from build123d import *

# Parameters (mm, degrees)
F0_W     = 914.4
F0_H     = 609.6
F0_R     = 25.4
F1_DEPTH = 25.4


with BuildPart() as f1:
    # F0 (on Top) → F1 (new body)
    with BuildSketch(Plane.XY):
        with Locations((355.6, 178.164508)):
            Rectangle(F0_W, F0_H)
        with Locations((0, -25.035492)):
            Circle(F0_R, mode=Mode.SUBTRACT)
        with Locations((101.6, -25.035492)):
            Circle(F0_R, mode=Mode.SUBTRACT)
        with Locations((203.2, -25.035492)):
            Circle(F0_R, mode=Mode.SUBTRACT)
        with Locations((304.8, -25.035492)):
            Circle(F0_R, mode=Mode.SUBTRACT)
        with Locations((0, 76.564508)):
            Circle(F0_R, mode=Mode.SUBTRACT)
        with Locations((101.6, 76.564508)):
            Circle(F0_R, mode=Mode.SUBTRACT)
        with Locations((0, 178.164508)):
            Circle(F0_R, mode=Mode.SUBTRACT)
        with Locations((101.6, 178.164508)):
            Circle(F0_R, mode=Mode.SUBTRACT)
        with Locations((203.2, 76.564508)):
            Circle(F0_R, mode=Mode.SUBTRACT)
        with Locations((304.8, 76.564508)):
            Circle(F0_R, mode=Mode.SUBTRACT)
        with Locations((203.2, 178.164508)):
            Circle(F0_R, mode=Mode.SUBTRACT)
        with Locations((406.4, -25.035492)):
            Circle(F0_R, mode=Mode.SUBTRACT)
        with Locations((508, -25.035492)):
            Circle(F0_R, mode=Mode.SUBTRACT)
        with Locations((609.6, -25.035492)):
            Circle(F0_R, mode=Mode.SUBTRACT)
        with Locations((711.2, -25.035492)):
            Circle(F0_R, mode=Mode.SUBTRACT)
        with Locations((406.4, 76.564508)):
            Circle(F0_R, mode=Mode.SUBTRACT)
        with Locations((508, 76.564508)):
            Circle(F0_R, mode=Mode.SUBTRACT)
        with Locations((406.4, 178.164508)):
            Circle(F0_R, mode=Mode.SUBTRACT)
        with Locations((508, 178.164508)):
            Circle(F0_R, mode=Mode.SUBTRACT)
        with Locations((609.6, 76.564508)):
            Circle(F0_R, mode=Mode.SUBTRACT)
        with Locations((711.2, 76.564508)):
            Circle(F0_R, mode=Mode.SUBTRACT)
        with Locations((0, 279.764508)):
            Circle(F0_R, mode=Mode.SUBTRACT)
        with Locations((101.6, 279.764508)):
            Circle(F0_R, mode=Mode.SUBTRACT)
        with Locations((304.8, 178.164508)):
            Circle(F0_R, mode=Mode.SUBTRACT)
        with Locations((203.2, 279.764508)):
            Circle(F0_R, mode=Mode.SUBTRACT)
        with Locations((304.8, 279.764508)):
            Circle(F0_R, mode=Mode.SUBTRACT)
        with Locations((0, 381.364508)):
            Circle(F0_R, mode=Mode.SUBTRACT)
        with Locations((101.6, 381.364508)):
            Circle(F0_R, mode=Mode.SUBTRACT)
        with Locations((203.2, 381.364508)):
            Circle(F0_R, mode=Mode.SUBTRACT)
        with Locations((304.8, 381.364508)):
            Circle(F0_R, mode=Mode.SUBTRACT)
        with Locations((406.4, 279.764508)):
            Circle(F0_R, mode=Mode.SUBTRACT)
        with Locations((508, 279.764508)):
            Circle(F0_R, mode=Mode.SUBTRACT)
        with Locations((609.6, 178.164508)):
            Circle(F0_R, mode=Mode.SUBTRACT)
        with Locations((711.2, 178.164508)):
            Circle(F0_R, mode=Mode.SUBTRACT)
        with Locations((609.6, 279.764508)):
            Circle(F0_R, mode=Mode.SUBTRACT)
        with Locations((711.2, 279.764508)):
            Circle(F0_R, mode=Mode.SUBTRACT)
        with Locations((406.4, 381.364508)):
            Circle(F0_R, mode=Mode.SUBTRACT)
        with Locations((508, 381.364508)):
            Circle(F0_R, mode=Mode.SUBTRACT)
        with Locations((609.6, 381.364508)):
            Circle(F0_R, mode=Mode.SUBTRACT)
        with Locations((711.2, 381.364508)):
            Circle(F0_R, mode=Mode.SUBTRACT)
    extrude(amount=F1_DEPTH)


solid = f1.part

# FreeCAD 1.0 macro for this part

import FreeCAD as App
import Part
import Sketcher

V = App.Vector
Q = App.Units.Quantity


def add_polygon(sketch, points):
    """Adds a closed chain of lines whose ends are joined by coincident constraints."""
    first, n = sketch.GeometryCount, len(points)
    for a, b in zip(points, points[1:] + points[:1]):
        sketch.addGeometry(Part.LineSegment(App.Vector(*a, 0), App.Vector(*b, 0)), False)
    for i in range(n):
        sketch.addConstraint(Sketcher.Constraint("Coincident", first + i, 2, first + (i + 1) % n, 1))

doc = App.newDocument("Part")
body = doc.addObject("PartDesign::Body", "Body")

sketch1 = body.newObject("Sketcher::SketchObject", "Sketch")
sketch1.AttachmentSupport = (doc.getObject("XY_Plane"), [""])
sketch1.MapMode = "FlatFace"
add_polygon(sketch1, [(-102, 483), (-102, -127), (813, -127), (813, 483)])
sketch1.addGeometry(Part.Circle(V(0, -25, 0), V(0, 0, 1), 25), False)
sketch1.addGeometry(Part.Circle(V(102, -25, 0), V(0, 0, 1), 25), False)
sketch1.addGeometry(Part.Circle(V(203, -25, 0), V(0, 0, 1), 25), False)
sketch1.addGeometry(Part.Circle(V(305, -25, 0), V(0, 0, 1), 25), False)
sketch1.addGeometry(Part.Circle(V(0, 77, 0), V(0, 0, 1), 25), False)
sketch1.addGeometry(Part.Circle(V(102, 77, 0), V(0, 0, 1), 25), False)
sketch1.addGeometry(Part.Circle(V(203, 77, 0), V(0, 0, 1), 25), False)
sketch1.addGeometry(Part.Circle(V(305, 77, 0), V(0, 0, 1), 25), False)
sketch1.addGeometry(Part.Circle(V(406, -25, 0), V(0, 0, 1), 25), False)
sketch1.addGeometry(Part.Circle(V(508, -25, 0), V(0, 0, 1), 25), False)
sketch1.addGeometry(Part.Circle(V(610, -25, 0), V(0, 0, 1), 25), False)
sketch1.addGeometry(Part.Circle(V(711, -25, 0), V(0, 0, 1), 25), False)
sketch1.addGeometry(Part.Circle(V(406, 77, 0), V(0, 0, 1), 25), False)
sketch1.addGeometry(Part.Circle(V(508, 77, 0), V(0, 0, 1), 25), False)
sketch1.addGeometry(Part.Circle(V(610, 77, 0), V(0, 0, 1), 25), False)
sketch1.addGeometry(Part.Circle(V(711, 77, 0), V(0, 0, 1), 25), False)
sketch1.addGeometry(Part.Circle(V(0, 178, 0), V(0, 0, 1), 25), False)
sketch1.addGeometry(Part.Circle(V(102, 178, 0), V(0, 0, 1), 25), False)
sketch1.addGeometry(Part.Circle(V(0, 280, 0), V(0, 0, 1), 25), False)
sketch1.addGeometry(Part.Circle(V(102, 280, 0), V(0, 0, 1), 25), False)
sketch1.addGeometry(Part.Circle(V(203, 178, 0), V(0, 0, 1), 25), False)
sketch1.addGeometry(Part.Circle(V(305, 178, 0), V(0, 0, 1), 25), False)
sketch1.addGeometry(Part.Circle(V(203, 280, 0), V(0, 0, 1), 25), False)
sketch1.addGeometry(Part.Circle(V(305, 280, 0), V(0, 0, 1), 25), False)
sketch1.addGeometry(Part.Circle(V(0, 381, 0), V(0, 0, 1), 25), False)
sketch1.addGeometry(Part.Circle(V(102, 381, 0), V(0, 0, 1), 25), False)
sketch1.addGeometry(Part.Circle(V(203, 381, 0), V(0, 0, 1), 25), False)
sketch1.addGeometry(Part.Circle(V(305, 381, 0), V(0, 0, 1), 25), False)
sketch1.addGeometry(Part.Circle(V(406, 178, 0), V(0, 0, 1), 25), False)
sketch1.addGeometry(Part.Circle(V(508, 178, 0), V(0, 0, 1), 25), False)
sketch1.addGeometry(Part.Circle(V(406, 280, 0), V(0, 0, 1), 25), False)
sketch1.addGeometry(Part.Circle(V(508, 280, 0), V(0, 0, 1), 25), False)
sketch1.addGeometry(Part.Circle(V(610, 178, 0), V(0, 0, 1), 25), False)
sketch1.addGeometry(Part.Circle(V(711, 178, 0), V(0, 0, 1), 25), False)
sketch1.addGeometry(Part.Circle(V(610, 280, 0), V(0, 0, 1), 25), False)
sketch1.addGeometry(Part.Circle(V(711, 280, 0), V(0, 0, 1), 25), False)
sketch1.addGeometry(Part.Circle(V(406, 381, 0), V(0, 0, 1), 25), False)
sketch1.addGeometry(Part.Circle(V(508, 381, 0), V(0, 0, 1), 25), False)
sketch1.addGeometry(Part.Circle(V(610, 381, 0), V(0, 0, 1), 25), False)
sketch1.addGeometry(Part.Circle(V(711, 381, 0), V(0, 0, 1), 25), False)
sketch1.addConstraint([
    Sketcher.Constraint("Vertical", 0),
    Sketcher.Constraint("Horizontal", 1),
    Sketcher.Constraint("Vertical", 2),
    Sketcher.Constraint("Horizontal", 3),
    Sketcher.Constraint("Equal", 4, 5),
    Sketcher.Constraint("Equal", 5, 6),
    Sketcher.Constraint("Equal", 6, 7),
    Sketcher.Constraint("Equal", 7, 8),
    Sketcher.Constraint("Equal", 8, 9),
    Sketcher.Constraint("Equal", 9, 10),
    Sketcher.Constraint("Equal", 10, 11),
    Sketcher.Constraint("Equal", 11, 12),
    Sketcher.Constraint("Equal", 12, 13),
    Sketcher.Constraint("Equal", 13, 14),
    Sketcher.Constraint("Equal", 14, 15),
    Sketcher.Constraint("Equal", 15, 16),
    Sketcher.Constraint("Equal", 16, 17),
    Sketcher.Constraint("Equal", 17, 18),
    Sketcher.Constraint("Equal", 18, 19),
    Sketcher.Constraint("Equal", 19, 20),
    Sketcher.Constraint("Equal", 20, 21),
    Sketcher.Constraint("Equal", 21, 22),
    Sketcher.Constraint("Equal", 22, 23),
    Sketcher.Constraint("Equal", 23, 24),
    Sketcher.Constraint("Equal", 24, 25),
    Sketcher.Constraint("Equal", 25, 26),
    Sketcher.Constraint("Equal", 26, 27),
    Sketcher.Constraint("Equal", 27, 28),
    Sketcher.Constraint("Equal", 28, 29),
    Sketcher.Constraint("Equal", 29, 30),
    Sketcher.Constraint("Equal", 30, 31),
    Sketcher.Constraint("Equal", 31, 32),
    Sketcher.Constraint("Equal", 32, 33),
    Sketcher.Constraint("Equal", 33, 34),
    Sketcher.Constraint("Equal", 34, 35),
    Sketcher.Constraint("Equal", 35, 36),
    Sketcher.Constraint("Equal", 36, 37),
    Sketcher.Constraint("Equal", 37, 38),
    Sketcher.Constraint("Equal", 38, 39),
    Sketcher.Constraint("Equal", 39, 40),
    Sketcher.Constraint("Equal", 40, 41),
    Sketcher.Constraint("Equal", 41, 42),
    Sketcher.Constraint("Equal", 42, 43),
    Sketcher.Constraint("PointOnObject", 4, 3, -2),
    Sketcher.Constraint("PointOnObject", 8, 3, -2),
    Sketcher.Constraint("PointOnObject", 20, 3, -2),
    Sketcher.Constraint("PointOnObject", 22, 3, -2),
    Sketcher.Constraint("PointOnObject", 28, 3, -2),
    Sketcher.Constraint("Horizontal", 4, 3, 5, 3),
    Sketcher.Constraint("Horizontal", 5, 3, 6, 3),
    Sketcher.Constraint("Horizontal", 6, 3, 7, 3),
    Sketcher.Constraint("Horizontal", 8, 3, 9, 3),
    Sketcher.Constraint("Horizontal", 9, 3, 10, 3),
    Sketcher.Constraint("Horizontal", 10, 3, 11, 3),
    Sketcher.Constraint("Horizontal", 7, 3, 12, 3),
    Sketcher.Constraint("Horizontal", 12, 3, 13, 3),
    Sketcher.Constraint("Horizontal", 13, 3, 14, 3),
    Sketcher.Constraint("Horizontal", 14, 3, 15, 3),
    Sketcher.Constraint("Horizontal", 11, 3, 16, 3),
    Sketcher.Constraint("Horizontal", 16, 3, 17, 3),
    Sketcher.Constraint("Horizontal", 17, 3, 18, 3),
    Sketcher.Constraint("Horizontal", 18, 3, 19, 3),
    Sketcher.Constraint("Horizontal", 20, 3, 21, 3),
    Sketcher.Constraint("Horizontal", 22, 3, 23, 3),
    Sketcher.Constraint("Horizontal", 21, 3, 24, 3),
    Sketcher.Constraint("Horizontal", 24, 3, 25, 3),
    Sketcher.Constraint("Horizontal", 23, 3, 26, 3),
    Sketcher.Constraint("Horizontal", 26, 3, 27, 3),
    Sketcher.Constraint("Horizontal", 28, 3, 29, 3),
    Sketcher.Constraint("Horizontal", 29, 3, 30, 3),
    Sketcher.Constraint("Horizontal", 30, 3, 31, 3),
    Sketcher.Constraint("Horizontal", 25, 3, 32, 3),
    Sketcher.Constraint("Horizontal", 32, 3, 33, 3),
    Sketcher.Constraint("Horizontal", 27, 3, 34, 3),
    Sketcher.Constraint("Horizontal", 34, 3, 35, 3),
    Sketcher.Constraint("Horizontal", 33, 3, 36, 3),
    Sketcher.Constraint("Horizontal", 36, 3, 37, 3),
    Sketcher.Constraint("Horizontal", 35, 3, 38, 3),
    Sketcher.Constraint("Horizontal", 38, 3, 39, 3),
    Sketcher.Constraint("Horizontal", 31, 3, 40, 3),
    Sketcher.Constraint("Horizontal", 40, 3, 41, 3),
    Sketcher.Constraint("Horizontal", 41, 3, 42, 3),
    Sketcher.Constraint("Horizontal", 42, 3, 43, 3),
    Sketcher.Constraint("Vertical", 5, 3, 9, 3),
    Sketcher.Constraint("Vertical", 6, 3, 10, 3),
    Sketcher.Constraint("Vertical", 7, 3, 11, 3),
    Sketcher.Constraint("Vertical", 12, 3, 16, 3),
    Sketcher.Constraint("Vertical", 13, 3, 17, 3),
    Sketcher.Constraint("Vertical", 14, 3, 18, 3),
    Sketcher.Constraint("Vertical", 15, 3, 19, 3),
    Sketcher.Constraint("Vertical", 9, 3, 21, 3),
    Sketcher.Constraint("Vertical", 21, 3, 23, 3),
    Sketcher.Constraint("Vertical", 10, 3, 24, 3),
    Sketcher.Constraint("Vertical", 11, 3, 25, 3),
    Sketcher.Constraint("Vertical", 24, 3, 26, 3),
    Sketcher.Constraint("Vertical", 25, 3, 27, 3),
    Sketcher.Constraint("Vertical", 23, 3, 29, 3),
    Sketcher.Constraint("Vertical", 26, 3, 30, 3),
    Sketcher.Constraint("Vertical", 27, 3, 31, 3),
    Sketcher.Constraint("Vertical", 16, 3, 32, 3),
    Sketcher.Constraint("Vertical", 17, 3, 33, 3),
    Sketcher.Constraint("Vertical", 32, 3, 34, 3),
    Sketcher.Constraint("Vertical", 33, 3, 35, 3),
    Sketcher.Constraint("Vertical", 18, 3, 36, 3),
    Sketcher.Constraint("Vertical", 19, 3, 37, 3),
    Sketcher.Constraint("Vertical", 36, 3, 38, 3),
    Sketcher.Constraint("Vertical", 37, 3, 39, 3),
    Sketcher.Constraint("Vertical", 34, 3, 40, 3),
    Sketcher.Constraint("Vertical", 35, 3, 41, 3),
    Sketcher.Constraint("Vertical", 38, 3, 42, 3),
    Sketcher.Constraint("Vertical", 39, 3, 43, 3),
    Sketcher.Constraint("Diameter", 4, Q("2 in")),
    Sketcher.Constraint("DistanceX", 1, 1, 1, 2, Q("36 in")),
    Sketcher.Constraint("DistanceY", 0, 2, 0, 1, Q("24 in")),
    Sketcher.Constraint("DistanceX", -1, 1, 5, 3, Q("4 in")),
    Sketcher.Constraint("DistanceX", -1, 1, 6, 3, Q("8 in")),
    Sketcher.Constraint("DistanceX", -1, 1, 7, 3, Q("12 in")),
    Sketcher.Constraint("DistanceX", -1, 1, 12, 3, Q("16 in")),
    Sketcher.Constraint("DistanceX", -1, 1, 13, 3, Q("20 in")),
    Sketcher.Constraint("DistanceX", -1, 1, 14, 3, Q("24 in")),
    Sketcher.Constraint("DistanceX", -1, 1, 15, 3, Q("28 in")),
    Sketcher.Constraint("DistanceX", 0, 2, -1, 1, Q("4 in")),
    Sketcher.Constraint("DistanceY", 4, 3, 8, 3, Q("4 in")),
    Sketcher.Constraint("DistanceY", 8, 3, 20, 3, Q("4 in")),
    Sketcher.Constraint("DistanceY", 20, 3, 22, 3, Q("4 in")),
    Sketcher.Constraint("DistanceY", 22, 3, 28, 3, Q("4 in")),
    Sketcher.Constraint("DistanceY", 0, 2, 4, 3, Q("4 in")),
    Sketcher.Constraint("DistanceY", -1, 1, 8, 3, 76.564508),
])
pad1 = body.newObject("PartDesign::Pad", "Pad")
pad1.Profile = sketch1
pad1.Length = Q("1 in")

doc.recompute()
